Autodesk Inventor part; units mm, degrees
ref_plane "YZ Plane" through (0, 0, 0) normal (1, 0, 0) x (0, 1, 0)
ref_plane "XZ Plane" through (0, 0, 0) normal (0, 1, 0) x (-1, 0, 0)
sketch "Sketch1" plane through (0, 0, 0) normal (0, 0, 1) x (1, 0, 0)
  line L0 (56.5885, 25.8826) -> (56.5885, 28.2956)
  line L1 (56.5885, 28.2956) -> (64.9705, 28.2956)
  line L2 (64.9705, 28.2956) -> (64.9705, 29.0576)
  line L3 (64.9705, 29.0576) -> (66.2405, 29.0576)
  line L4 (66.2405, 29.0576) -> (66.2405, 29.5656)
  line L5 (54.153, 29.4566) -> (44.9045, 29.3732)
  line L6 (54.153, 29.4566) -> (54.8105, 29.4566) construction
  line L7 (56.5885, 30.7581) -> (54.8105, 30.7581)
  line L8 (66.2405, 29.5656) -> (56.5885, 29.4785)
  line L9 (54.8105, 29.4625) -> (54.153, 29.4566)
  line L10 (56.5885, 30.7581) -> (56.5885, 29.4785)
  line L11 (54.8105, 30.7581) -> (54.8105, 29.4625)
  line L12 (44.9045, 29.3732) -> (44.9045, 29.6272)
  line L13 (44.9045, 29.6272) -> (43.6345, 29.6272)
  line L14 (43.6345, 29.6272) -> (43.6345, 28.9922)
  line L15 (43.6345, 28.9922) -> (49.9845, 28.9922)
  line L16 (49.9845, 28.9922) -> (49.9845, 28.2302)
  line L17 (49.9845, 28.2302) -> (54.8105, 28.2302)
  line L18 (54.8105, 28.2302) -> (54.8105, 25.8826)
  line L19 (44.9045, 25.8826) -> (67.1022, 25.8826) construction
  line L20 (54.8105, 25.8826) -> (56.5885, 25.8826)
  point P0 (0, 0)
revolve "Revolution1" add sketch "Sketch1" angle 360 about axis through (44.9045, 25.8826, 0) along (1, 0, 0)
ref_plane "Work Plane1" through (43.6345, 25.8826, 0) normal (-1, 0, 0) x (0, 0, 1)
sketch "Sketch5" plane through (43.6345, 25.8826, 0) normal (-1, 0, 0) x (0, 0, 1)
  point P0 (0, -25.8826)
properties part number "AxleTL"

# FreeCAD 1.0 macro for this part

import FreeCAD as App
import Part
import Sketcher
Q = App.Units.Quantity

doc = App.newDocument("Part")
body = doc.addObject("PartDesign::Body", "Body")

# Sketch on XY plane
sketch1 = doc.addObject("Sketcher::SketchObject", "Sketch")
body.addObject(sketch1)
sketch1.AttachmentSupport = (doc.XY_Plane, [""])
sketch1.MapMode = "FlatFace"
sketch1.addGeometry([
    Part.LineSegment(App.Vector(54.81, 25.88, 0), App.Vector(56.59, 25.88, 0)),  # 0
    Part.LineSegment(App.Vector(56.59, 25.88, 0), App.Vector(56.59, 28.3, 0)),  # 1
    Part.LineSegment(App.Vector(56.59, 28.3, 0), App.Vector(64.97, 28.3, 0)),  # 2
    Part.LineSegment(App.Vector(64.97, 28.3, 0), App.Vector(64.97, 29.06, 0)),  # 3
    Part.LineSegment(App.Vector(64.97, 29.06, 0), App.Vector(66.24, 29.06, 0)),  # 4
    Part.LineSegment(App.Vector(66.24, 29.06, 0), App.Vector(66.24, 29.57, 0)),  # 5
    Part.LineSegment(App.Vector(66.24, 29.57, 0), App.Vector(56.59, 29.48, 0)),  # 6
    Part.LineSegment(App.Vector(56.59, 29.48, 0), App.Vector(56.59, 30.76, 0)),  # 7
    Part.LineSegment(App.Vector(56.59, 30.76, 0), App.Vector(54.81, 30.76, 0)),  # 8
    Part.LineSegment(App.Vector(54.81, 30.76, 0), App.Vector(54.81, 29.46, 0)),  # 9
    Part.LineSegment(App.Vector(54.81, 29.46, 0), App.Vector(54.15, 29.46, 0)),  # 10
    Part.LineSegment(App.Vector(54.15, 29.46, 0), App.Vector(44.9, 29.37, 0)),  # 11
    Part.LineSegment(App.Vector(44.9, 29.37, 0), App.Vector(44.9, 29.63, 0)),  # 12
    Part.LineSegment(App.Vector(44.9, 29.63, 0), App.Vector(43.63, 29.63, 0)),  # 13
    Part.LineSegment(App.Vector(43.63, 29.63, 0), App.Vector(43.63, 28.99, 0)),  # 14
    Part.LineSegment(App.Vector(43.63, 28.99, 0), App.Vector(49.98, 28.99, 0)),  # 15
    Part.LineSegment(App.Vector(49.98, 28.99, 0), App.Vector(49.98, 28.23, 0)),  # 16
    Part.LineSegment(App.Vector(49.98, 28.23, 0), App.Vector(54.81, 28.23, 0)),  # 17
    Part.LineSegment(App.Vector(54.81, 28.23, 0), App.Vector(54.81, 25.88, 0)),  # 18
], False)
sketch1.addGeometry(Part.LineSegment(App.Vector(43.63, 25.88, 0), App.Vector(66.24, 25.88, 0)), True)  # axis
sketch1.addConstraint([
    Sketcher.Constraint("Coincident", 0, 2, 1, 1),
    Sketcher.Constraint("Coincident", 1, 2, 2, 1),
    Sketcher.Constraint("Coincident", 2, 2, 3, 1),
    Sketcher.Constraint("Coincident", 3, 2, 4, 1),
    Sketcher.Constraint("Coincident", 4, 2, 5, 1),
    Sketcher.Constraint("Coincident", 5, 2, 6, 1),
    Sketcher.Constraint("Coincident", 6, 2, 7, 1),
    Sketcher.Constraint("Coincident", 7, 2, 8, 1),
    Sketcher.Constraint("Coincident", 8, 2, 9, 1),
    Sketcher.Constraint("Coincident", 9, 2, 10, 1),
    Sketcher.Constraint("Coincident", 10, 2, 11, 1),
    Sketcher.Constraint("Coincident", 11, 2, 12, 1),
    Sketcher.Constraint("Coincident", 12, 2, 13, 1),
    Sketcher.Constraint("Coincident", 13, 2, 14, 1),
    Sketcher.Constraint("Coincident", 14, 2, 15, 1),
    Sketcher.Constraint("Coincident", 15, 2, 16, 1),
    Sketcher.Constraint("Coincident", 16, 2, 17, 1),
    Sketcher.Constraint("Coincident", 17, 2, 18, 1),
    Sketcher.Constraint("Coincident", 18, 2, 0, 1),
    Sketcher.Constraint("Horizontal", 0),
    Sketcher.Constraint("Vertical", 1),
    Sketcher.Constraint("Horizontal", 2),
    Sketcher.Constraint("Vertical", 3),
    Sketcher.Constraint("Horizontal", 4),
    Sketcher.Constraint("Vertical", 5),
    Sketcher.Constraint("Vertical", 7),
    Sketcher.Constraint("Horizontal", 8),
    Sketcher.Constraint("Vertical", 9),
    Sketcher.Constraint("Vertical", 12),
    Sketcher.Constraint("Horizontal", 13),
    Sketcher.Constraint("Vertical", 14),
    Sketcher.Constraint("Horizontal", 15),
    Sketcher.Constraint("Vertical", 16),
    Sketcher.Constraint("Horizontal", 17),
    Sketcher.Constraint("Vertical", 18),
    Sketcher.Constraint("Horizontal", 19),
    Sketcher.Constraint("Parallel", 6, 10),
    Sketcher.Constraint("Parallel", 10, 11),
    Sketcher.Constraint("Horizontal", 18, 2, 19, 1),
    Sketcher.Constraint("Vertical", 1, 2, 6, 2),
    Sketcher.Constraint("Vertical", 9, 2, 17, 2),
    Sketcher.Constraint("Vertical", 14, 2, 19, 1),
    Sketcher.Constraint("Vertical", 5, 2, 19, 2),
    Sketcher.Constraint("Equal", 4, 13),
    Sketcher.Constraint("Equal", 3, 16),
    Sketcher.Constraint("DistanceX", 0, 1, 0, 2, Q("0.07 in")),
    Sketcher.Constraint("DistanceX", 2, 1, 2, 2, Q("0.33 in")),
    Sketcher.Constraint("DistanceX", 4, 1, 4, 2, Q("0.05 in")),
    Sketcher.Constraint("DistanceX", 15, 1, 15, 2, Q("0.25 in")),
    Sketcher.Constraint("DistanceX", 17, 1, 17, 2, Q("0.19 in")),
    Sketcher.Constraint("DistanceY", 3, 1, 3, 2, Q("0.03 in")),
    Sketcher.Constraint("DistanceY", 5, 1, 5, 2, Q("0.02 in")),
    Sketcher.Constraint("DistanceY", 12, 1, 12, 2, Q("0.01 in")),
    Sketcher.Constraint("DistanceY", 1, 1, 1, 2, Q("0.095 in")),
    Sketcher.Constraint("DistanceY", 9, 2, 9, 1, Q("0.051 in")),
    Sketcher.Constraint("DistanceY", 14, 2, 14, 1, Q("0.025 in")),
    Sketcher.Constraint("DistanceY", -1, 1, 0, 2, Q("1.019 in")),
    Sketcher.Constraint("DistanceX", -1, 1, 10, 2, Q("2.132 in")),
    Sketcher.Constraint("DistanceY", 7, 1, 7, 2, Q("1.2796 mm")),
    Sketcher.Constraint("DistanceY", 18, 2, 18, 1, Q("2.3476 mm")),
    Sketcher.Constraint("DistanceX", -1, 1, 0, 2, Q("2.2279 in")),
])
revolution = doc.addObject("PartDesign::Revolution", "Revolution")
body.addObject(revolution)
revolution.Profile = sketch1
revolution.ReferenceAxis = (sketch1, ["Axis0"])
revolution.Angle = 360

doc.recompute()
